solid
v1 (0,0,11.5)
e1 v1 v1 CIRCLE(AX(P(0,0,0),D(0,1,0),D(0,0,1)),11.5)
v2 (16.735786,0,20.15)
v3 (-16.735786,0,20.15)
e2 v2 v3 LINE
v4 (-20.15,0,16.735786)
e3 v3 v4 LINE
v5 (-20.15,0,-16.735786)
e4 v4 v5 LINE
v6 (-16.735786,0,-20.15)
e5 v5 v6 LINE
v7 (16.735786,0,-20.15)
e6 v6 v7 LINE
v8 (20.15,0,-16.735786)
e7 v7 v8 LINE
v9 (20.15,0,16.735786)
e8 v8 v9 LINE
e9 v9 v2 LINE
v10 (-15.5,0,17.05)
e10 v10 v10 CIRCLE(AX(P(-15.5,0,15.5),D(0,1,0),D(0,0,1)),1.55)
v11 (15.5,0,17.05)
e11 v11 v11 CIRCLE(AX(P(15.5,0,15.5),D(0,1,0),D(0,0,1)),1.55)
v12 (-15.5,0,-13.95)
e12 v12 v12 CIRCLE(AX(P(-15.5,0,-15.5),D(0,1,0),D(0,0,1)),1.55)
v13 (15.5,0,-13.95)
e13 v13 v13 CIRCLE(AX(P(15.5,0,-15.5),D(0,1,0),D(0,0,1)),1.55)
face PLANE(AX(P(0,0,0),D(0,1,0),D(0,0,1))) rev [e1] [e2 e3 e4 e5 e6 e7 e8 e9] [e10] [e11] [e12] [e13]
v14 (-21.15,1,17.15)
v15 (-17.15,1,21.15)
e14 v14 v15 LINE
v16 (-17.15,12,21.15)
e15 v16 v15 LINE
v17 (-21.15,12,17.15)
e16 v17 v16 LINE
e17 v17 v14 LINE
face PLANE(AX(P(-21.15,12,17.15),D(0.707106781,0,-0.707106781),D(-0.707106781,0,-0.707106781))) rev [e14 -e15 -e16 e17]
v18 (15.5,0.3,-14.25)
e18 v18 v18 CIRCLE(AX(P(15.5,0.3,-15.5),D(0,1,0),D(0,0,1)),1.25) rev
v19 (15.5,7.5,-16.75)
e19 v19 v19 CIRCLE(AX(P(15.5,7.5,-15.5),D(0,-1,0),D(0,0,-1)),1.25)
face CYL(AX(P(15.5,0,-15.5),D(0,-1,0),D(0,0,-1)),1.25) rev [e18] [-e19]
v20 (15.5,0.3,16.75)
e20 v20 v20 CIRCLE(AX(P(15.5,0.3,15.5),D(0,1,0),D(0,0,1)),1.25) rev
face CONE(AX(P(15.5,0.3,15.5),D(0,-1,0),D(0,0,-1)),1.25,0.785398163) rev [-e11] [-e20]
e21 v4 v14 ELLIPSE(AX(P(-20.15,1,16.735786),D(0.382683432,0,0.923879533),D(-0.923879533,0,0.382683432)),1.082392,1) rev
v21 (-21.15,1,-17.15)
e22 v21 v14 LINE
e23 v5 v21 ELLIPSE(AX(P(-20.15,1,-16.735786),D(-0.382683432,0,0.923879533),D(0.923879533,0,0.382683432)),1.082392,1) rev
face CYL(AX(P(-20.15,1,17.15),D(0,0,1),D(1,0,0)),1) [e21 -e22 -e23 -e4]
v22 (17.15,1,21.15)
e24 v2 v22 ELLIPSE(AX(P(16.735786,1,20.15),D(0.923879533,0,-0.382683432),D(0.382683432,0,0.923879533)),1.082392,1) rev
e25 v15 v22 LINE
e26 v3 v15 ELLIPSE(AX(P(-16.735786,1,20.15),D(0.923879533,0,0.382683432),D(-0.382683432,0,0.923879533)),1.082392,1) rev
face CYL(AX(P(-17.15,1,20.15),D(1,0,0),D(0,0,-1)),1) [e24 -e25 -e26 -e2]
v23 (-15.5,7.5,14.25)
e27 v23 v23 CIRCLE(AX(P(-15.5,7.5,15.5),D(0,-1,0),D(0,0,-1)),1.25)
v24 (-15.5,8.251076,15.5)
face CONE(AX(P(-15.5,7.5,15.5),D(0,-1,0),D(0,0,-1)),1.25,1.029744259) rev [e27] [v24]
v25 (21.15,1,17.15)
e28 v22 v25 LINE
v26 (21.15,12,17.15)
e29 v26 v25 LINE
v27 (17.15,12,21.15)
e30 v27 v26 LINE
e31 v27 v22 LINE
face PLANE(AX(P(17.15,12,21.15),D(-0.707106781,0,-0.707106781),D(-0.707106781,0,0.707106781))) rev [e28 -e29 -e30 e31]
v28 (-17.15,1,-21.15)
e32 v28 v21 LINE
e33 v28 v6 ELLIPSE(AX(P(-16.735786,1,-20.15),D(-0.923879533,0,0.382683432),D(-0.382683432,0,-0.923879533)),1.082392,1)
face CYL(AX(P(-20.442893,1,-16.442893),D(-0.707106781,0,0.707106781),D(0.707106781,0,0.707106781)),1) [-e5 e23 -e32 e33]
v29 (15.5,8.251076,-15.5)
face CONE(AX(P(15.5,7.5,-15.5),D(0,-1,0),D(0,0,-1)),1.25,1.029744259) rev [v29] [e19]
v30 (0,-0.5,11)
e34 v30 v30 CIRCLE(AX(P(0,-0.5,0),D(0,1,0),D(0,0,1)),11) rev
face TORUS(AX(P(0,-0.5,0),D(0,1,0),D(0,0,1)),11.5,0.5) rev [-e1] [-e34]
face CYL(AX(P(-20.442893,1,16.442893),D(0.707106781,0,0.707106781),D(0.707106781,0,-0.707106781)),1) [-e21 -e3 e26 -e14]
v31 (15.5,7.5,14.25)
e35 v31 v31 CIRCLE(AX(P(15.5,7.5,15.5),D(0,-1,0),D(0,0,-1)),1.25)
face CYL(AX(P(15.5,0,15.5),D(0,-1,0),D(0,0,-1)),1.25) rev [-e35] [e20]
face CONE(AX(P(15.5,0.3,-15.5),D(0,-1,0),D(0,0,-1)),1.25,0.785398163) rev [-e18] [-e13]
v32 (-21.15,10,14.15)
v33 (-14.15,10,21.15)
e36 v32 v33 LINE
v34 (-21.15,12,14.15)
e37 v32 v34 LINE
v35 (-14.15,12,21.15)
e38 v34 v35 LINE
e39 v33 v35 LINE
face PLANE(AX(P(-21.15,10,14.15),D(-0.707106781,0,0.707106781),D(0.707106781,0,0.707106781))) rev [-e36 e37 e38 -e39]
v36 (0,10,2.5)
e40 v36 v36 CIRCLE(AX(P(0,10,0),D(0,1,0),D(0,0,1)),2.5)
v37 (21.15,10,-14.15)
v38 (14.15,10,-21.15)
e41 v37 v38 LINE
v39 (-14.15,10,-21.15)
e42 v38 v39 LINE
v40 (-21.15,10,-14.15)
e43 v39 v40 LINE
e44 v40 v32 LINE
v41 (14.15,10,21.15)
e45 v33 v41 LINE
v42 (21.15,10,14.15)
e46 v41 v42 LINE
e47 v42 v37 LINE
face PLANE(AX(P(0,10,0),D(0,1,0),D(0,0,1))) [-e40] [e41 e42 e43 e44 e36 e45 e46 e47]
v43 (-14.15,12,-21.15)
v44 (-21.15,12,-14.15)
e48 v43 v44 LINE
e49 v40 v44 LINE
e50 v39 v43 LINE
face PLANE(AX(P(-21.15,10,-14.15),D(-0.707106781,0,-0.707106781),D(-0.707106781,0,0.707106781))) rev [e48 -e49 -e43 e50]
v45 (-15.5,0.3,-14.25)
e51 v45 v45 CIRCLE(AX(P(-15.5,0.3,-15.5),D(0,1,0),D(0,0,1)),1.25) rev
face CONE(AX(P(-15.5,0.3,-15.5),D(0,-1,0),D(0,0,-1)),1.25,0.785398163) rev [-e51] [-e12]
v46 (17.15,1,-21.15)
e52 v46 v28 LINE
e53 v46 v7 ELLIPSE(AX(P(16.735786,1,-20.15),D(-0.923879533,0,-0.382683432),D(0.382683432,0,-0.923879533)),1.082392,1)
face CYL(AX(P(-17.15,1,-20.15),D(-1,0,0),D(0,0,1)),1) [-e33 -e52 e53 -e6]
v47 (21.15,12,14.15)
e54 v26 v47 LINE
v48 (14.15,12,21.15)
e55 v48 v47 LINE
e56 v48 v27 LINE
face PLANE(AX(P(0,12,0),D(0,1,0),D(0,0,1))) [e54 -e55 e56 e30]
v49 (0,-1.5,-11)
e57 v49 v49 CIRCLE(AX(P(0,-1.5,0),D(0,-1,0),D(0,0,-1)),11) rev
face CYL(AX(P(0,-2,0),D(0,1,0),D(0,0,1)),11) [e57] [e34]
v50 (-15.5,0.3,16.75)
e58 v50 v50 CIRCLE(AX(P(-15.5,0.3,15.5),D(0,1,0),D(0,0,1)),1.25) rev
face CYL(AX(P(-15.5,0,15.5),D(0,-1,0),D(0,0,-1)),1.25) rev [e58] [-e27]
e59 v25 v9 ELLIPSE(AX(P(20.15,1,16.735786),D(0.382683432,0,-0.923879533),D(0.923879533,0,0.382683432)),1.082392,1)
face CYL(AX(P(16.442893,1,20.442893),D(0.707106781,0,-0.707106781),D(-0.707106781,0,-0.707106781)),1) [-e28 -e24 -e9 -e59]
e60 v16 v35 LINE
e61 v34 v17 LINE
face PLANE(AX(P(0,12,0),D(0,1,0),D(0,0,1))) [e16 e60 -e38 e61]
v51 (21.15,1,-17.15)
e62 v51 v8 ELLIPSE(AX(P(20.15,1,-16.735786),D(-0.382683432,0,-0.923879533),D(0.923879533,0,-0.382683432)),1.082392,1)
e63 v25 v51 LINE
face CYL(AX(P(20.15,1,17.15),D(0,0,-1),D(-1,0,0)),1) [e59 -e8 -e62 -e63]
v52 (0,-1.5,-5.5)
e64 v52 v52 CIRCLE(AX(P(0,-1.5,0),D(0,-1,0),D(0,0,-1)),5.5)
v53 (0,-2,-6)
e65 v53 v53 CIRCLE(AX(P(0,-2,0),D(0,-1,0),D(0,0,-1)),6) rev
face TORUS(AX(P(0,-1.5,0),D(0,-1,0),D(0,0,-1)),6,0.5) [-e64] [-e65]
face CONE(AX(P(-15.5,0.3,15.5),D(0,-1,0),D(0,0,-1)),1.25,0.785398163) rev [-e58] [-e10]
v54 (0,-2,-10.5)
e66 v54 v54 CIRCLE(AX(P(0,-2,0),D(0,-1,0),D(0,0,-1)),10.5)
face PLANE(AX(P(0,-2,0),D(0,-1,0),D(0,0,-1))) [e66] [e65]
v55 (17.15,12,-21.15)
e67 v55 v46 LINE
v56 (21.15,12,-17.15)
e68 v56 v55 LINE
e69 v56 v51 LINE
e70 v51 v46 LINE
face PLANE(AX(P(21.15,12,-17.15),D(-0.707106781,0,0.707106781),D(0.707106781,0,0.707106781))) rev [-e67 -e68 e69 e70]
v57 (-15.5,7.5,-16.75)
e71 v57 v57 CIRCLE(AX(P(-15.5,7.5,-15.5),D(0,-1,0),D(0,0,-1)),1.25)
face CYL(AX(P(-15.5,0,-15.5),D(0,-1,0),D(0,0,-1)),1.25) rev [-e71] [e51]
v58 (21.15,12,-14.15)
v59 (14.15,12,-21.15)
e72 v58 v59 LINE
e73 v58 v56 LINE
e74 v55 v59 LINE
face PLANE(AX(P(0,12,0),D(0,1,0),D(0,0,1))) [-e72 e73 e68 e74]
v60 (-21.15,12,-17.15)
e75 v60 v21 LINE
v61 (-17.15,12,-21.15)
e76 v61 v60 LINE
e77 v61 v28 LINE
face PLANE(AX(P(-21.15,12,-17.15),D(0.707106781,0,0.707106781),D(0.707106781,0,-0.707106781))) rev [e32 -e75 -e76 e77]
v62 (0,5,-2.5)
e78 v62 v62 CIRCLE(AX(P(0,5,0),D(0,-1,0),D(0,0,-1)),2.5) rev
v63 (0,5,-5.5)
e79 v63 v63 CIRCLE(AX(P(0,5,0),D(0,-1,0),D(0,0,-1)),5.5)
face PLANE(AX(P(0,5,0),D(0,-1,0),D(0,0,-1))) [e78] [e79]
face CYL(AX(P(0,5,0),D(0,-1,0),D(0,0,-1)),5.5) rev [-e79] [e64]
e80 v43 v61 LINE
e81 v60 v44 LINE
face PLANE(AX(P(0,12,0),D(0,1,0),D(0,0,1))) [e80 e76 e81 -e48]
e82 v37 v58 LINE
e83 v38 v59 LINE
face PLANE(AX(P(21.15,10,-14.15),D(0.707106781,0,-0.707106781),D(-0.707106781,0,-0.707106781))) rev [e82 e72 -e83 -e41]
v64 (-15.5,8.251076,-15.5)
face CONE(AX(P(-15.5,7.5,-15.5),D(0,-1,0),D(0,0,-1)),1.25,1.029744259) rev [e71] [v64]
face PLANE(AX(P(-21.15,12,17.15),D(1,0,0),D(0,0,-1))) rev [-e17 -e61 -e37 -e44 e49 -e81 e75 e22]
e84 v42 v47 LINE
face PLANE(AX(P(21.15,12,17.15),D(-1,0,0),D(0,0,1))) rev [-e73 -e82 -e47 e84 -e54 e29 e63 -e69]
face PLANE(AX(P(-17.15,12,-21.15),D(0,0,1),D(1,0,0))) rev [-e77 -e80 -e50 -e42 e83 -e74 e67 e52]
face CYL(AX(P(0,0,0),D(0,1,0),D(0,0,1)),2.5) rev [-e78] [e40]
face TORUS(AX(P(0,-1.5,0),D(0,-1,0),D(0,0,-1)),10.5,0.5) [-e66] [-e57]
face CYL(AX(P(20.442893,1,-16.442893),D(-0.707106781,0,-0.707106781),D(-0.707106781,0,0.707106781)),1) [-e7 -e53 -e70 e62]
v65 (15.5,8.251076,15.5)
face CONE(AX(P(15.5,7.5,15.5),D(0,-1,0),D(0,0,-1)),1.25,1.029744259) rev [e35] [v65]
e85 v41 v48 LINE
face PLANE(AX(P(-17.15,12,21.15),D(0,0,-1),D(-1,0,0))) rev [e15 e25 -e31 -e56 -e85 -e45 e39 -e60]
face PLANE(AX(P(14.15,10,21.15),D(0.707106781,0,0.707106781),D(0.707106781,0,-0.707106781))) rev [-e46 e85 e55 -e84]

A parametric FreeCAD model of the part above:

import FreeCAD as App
import Part
import Sketcher
from FreeCAD import Vector
Q = App.Units.Quantity


def edges_at(feature, points):
    """Names of the edges that pass closest to the given points."""
    edges = feature.Shape.Edges
    near = lambda p: min(range(len(edges)), key=lambda i: edges[i].distToShape(Part.Vertex(*p))[0])
    return sorted({f"Edge{near(p) + 1}" for p in points})


def add_polygon(sketch, points):
    """Adds a closed chain of lines whose ends are joined by coincident constraints."""
    first, n = sketch.GeometryCount, len(points)
    for a, b in zip(points, points[1:] + points[:1]):
        sketch.addGeometry(Part.LineSegment(App.Vector(*a, 0), App.Vector(*b, 0)), False)
    for i in range(n):
        sketch.addConstraint(Sketcher.Constraint("Coincident", first + i, 2, first + (i + 1) % n, 1))

doc = App.newDocument("Part")
params = doc.addObject("Spreadsheet::Sheet", "Params")
for row, (alias, value) in enumerate([
    ("sketch1_width", "34.3 mm"),
    ("pad1_length", "12 mm"),
    ("sketch2_width", "28.3 mm"),
    ("pocket1_length", "2 mm"),
    ("sketch3_diameter", "5 mm"),
    ("sketch4_diameter", "11 mm"),
    ("pocket3_length", "5 mm"),
    ("sketch5_diameter", "22 mm"),
    ("sketch5_diameter2", "11 mm"),
    ("pad2_length", "2 mm"),
    ("fillet_radius", "1 mm"),
    ("fillet2_radius", "0.5 mm"),
    ("sketch6_diameter", "2.5 mm"),
    ("hole_diameter", "2.5 mm"),
    ("hole_depth", "7.5 mm"),
    ("chamfer_size", "0.3 mm"),
], start=1):
    params.set(f"A{row}", alias)
    params.set(f"B{row}", "=" + value)
    params.setAlias(f"B{row}", alias)

body = doc.addObject("PartDesign::Body", "Body")

# Sketch on XZ plane
sketch1 = doc.addObject("Sketcher::SketchObject", "Sketch")
body.addObject(sketch1)
sketch1.AttachmentSupport = (doc.XZ_Plane, [""])
sketch1.MapMode = "FlatFace"
add_polygon(sketch1, [(-17, -21), (-21, -17), (-21, 17), (-17, 21), (17, 21), (21, 17), (21, -17), (17, -21)])  # lines 0-7
sketch1.addConstraint(Sketcher.Constraint("Vertical", 1))
sketch1.addConstraint(Sketcher.Constraint("Horizontal", 3))
sketch1.addConstraint(Sketcher.Constraint("Vertical", 5))
sketch1.addConstraint(Sketcher.Constraint("Horizontal", 7))
sketch1.addConstraint(Sketcher.Constraint("Symmetric", 0, 2, 4, 2, -1, 1))
sketch1.addConstraint(Sketcher.Constraint("Symmetric", 2, 2, 6, 2, -1, 1))
sketch1.addConstraint(Sketcher.Constraint("Perpendicular", 0, 2))
sketch1.addConstraint(Sketcher.Constraint("Perpendicular", 2, 4))
sketch1.addConstraint(Sketcher.Constraint("Perpendicular", 4, 6))
sketch1.addConstraint(Sketcher.Constraint("Horizontal", 1, 2, 4, 2))
sketch1.addConstraint(Sketcher.Constraint("Vertical", 3, 2, 6, 2))
sketch1.addConstraint(Sketcher.Constraint("Equal", 7, 1))
sketch1.addConstraint(Sketcher.Constraint("DistanceX", 3, 1, 3, 2, Q("34.3 mm")))
sketch1.addConstraint(Sketcher.Constraint("DistanceX", 1, 2, 2, 2, Q("4 mm")))
sketch1.setExpression("Constraints[20]", "Params.sketch1_width")
pad1 = doc.addObject("PartDesign::Pad", "Pad")
body.addObject(pad1)
pad1.Profile = sketch1
pad1.setExpression("Length", "Params.pad1_length")
pad1.Reversed = True

# Sketch on XZ plane
sketch2 = doc.addObject("Sketcher::SketchObject", "Sketch001")
body.addObject(sketch2)
sketch2.AttachmentSupport = (doc.XZ_Plane, [""])
sketch2.MapMode = "FlatFace"
sketch2.AttachmentOffset = App.Placement(Vector(0, 0, -12), App.Rotation())
add_polygon(sketch2, [(-14, 21), (14, 21), (21, 14), (21, -14), (14, -21), (-14, -21), (-21, -14), (-21, 14)])  # lines 0-7
sketch2.addConstraint(Sketcher.Constraint("Horizontal", 0))
sketch2.addConstraint(Sketcher.Constraint("Vertical", 2))
sketch2.addConstraint(Sketcher.Constraint("Horizontal", 4))
sketch2.addConstraint(Sketcher.Constraint("Vertical", 6))
sketch2.addConstraint(Sketcher.Constraint("Symmetric", 0, 2, 4, 2, -1, 1))
sketch2.addConstraint(Sketcher.Constraint("Symmetric", 1, 2, 5, 2, -1, 1))
sketch2.addConstraint(Sketcher.Constraint("Perpendicular", 1, 3))
sketch2.addConstraint(Sketcher.Constraint("Perpendicular", 5, 7))
sketch2.addConstraint(Sketcher.Constraint("Horizontal", 2, 2, 5, 2))
sketch2.addConstraint(Sketcher.Constraint("Horizontal", 1, 2, 6, 2))
sketch2.addConstraint(Sketcher.Constraint("Vertical", 0, 2, 3, 2))
sketch2.addConstraint(Sketcher.Constraint("Equal", 4, 2))
sketch2.addConstraint(Sketcher.Constraint("DistanceX", 0, 1, 0, 2, Q("28.3 mm")))
sketch2.addConstraint(Sketcher.Constraint("DistanceX", 0, 2, 1, 2, Q("7 mm")))
sketch2.setExpression("Constraints[20]", "Params.sketch2_width")
pocket1 = doc.addObject("PartDesign::Pocket", "Pocket")
body.addObject(pocket1)
pocket1.Profile = sketch2
pocket1.setExpression("Length", "Params.pocket1_length")
pocket1.Reversed = True

# Sketch on XZ plane
sketch3 = doc.addObject("Sketcher::SketchObject", "Sketch002")
body.addObject(sketch3)
sketch3.AttachmentSupport = (doc.XZ_Plane, [""])
sketch3.MapMode = "FlatFace"
sketch3.AttachmentOffset = App.Placement(Vector(0, 0, -10), App.Rotation())
sketch3.addGeometry(Part.Circle(Vector(0, 0, 0), Vector(0, 0, 1), 2.5), False)
sketch3.addConstraint(Sketcher.Constraint("Coincident", 0, 3, -1, 1))
sketch3.addConstraint(Sketcher.Constraint("Diameter", 0, Q("5 mm")))
sketch3.setExpression("Constraints[1]", "Params.sketch3_diameter")
pocket2 = doc.addObject("PartDesign::Pocket", "Pocket001")
body.addObject(pocket2)
pocket2.Profile = sketch3
pocket2.Type = "ThroughAll"
pocket2.Reversed = True

# Sketch on XZ plane
sketch4 = doc.addObject("Sketcher::SketchObject", "Sketch003")
body.addObject(sketch4)
sketch4.AttachmentSupport = (doc.XZ_Plane, [""])
sketch4.MapMode = "FlatFace"
sketch4.addGeometry(Part.Circle(Vector(0, 0, 0), Vector(0, 0, 1), 6), False)
sketch4.addConstraint(Sketcher.Constraint("Coincident", 0, 3, -1, 1))
sketch4.addConstraint(Sketcher.Constraint("Diameter", 0, Q("11 mm")))
sketch4.setExpression("Constraints[1]", "Params.sketch4_diameter")
pocket3 = doc.addObject("PartDesign::Pocket", "Pocket002")
body.addObject(pocket3)
pocket3.Profile = sketch4
pocket3.setExpression("Length", "Params.pocket3_length")

# Sketch on XZ plane
sketch5 = doc.addObject("Sketcher::SketchObject", "Sketch004")
body.addObject(sketch5)
sketch5.AttachmentSupport = (doc.XZ_Plane, [""])
sketch5.MapMode = "FlatFace"
sketch5.addGeometry(Part.Circle(Vector(0, 0, 0), Vector(0, 0, 1), 11), False)
sketch5.addGeometry(Part.Circle(Vector(0, 0, 0), Vector(0, 0, 1), 6), False)
sketch5.addConstraint(Sketcher.Constraint("Coincident", 0, 3, -1, 1))
sketch5.addConstraint(Sketcher.Constraint("Coincident", 1, 3, -1, 1))
sketch5.addConstraint(Sketcher.Constraint("Diameter", 0, Q("22 mm")))
sketch5.addConstraint(Sketcher.Constraint("Diameter", 1, Q("11 mm")))
sketch5.setExpression("Constraints[2]", "Params.sketch5_diameter")
sketch5.setExpression("Constraints[3]", "Params.sketch5_diameter2")
pad2 = doc.addObject("PartDesign::Pad", "Pad001")
body.addObject(pad2)
pad2.Profile = sketch5
pad2.setExpression("Length", "Params.pad2_length")
doc.recompute()

fillet = doc.addObject("PartDesign::Fillet", "Fillet")
body.addObject(fillet)
fillet.Base = (pad2, edges_at(pad2, [
    (-19.15, 0, -19.15),
    (0, 0, -21.15),
    (19.15, 0, -19.15),
    (21.15, 0, 0),
    (19.15, 0, 19.15),
    (0, 0, 21.15),
    (-19.15, 0, 19.15),
    (-21.15, 0, 0),
]))
fillet.setExpression("Radius", "Params.fillet_radius")
doc.recompute()

fillet2 = doc.addObject("PartDesign::Fillet", "Fillet001")
body.addObject(fillet2)
fillet2.Base = (fillet, edges_at(fillet, [(-11, 0, 0), (-11, -2, 0), (-5.5, -2, 0)]))
fillet2.setExpression("Radius", "Params.fillet2_radius")

# Sketch on XZ plane
sketch6 = doc.addObject("Sketcher::SketchObject", "Sketch005")
body.addObject(sketch6)
sketch6.AttachmentSupport = (doc.XZ_Plane, [""])
sketch6.MapMode = "FlatFace"
sketch6.addGeometry(Part.Circle(Vector(15.5, 15.5, 0), Vector(0, 0, 1), 1.2), False)
sketch6.addGeometry(Part.Circle(Vector(-15.5, 15.5, 0), Vector(0, 0, 1), 1.2), False)
sketch6.addGeometry(Part.Circle(Vector(-15.5, -15.5, 0), Vector(0, 0, 1), 1.2), False)
sketch6.addGeometry(Part.Circle(Vector(15.5, -15.5, 0), Vector(0, 0, 1), 1.2), False)
sketch6.addConstraint(Sketcher.Constraint("Equal", 0, 1))
sketch6.addConstraint(Sketcher.Constraint("Equal", 1, 2))
sketch6.addConstraint(Sketcher.Constraint("Equal", 2, 3))
sketch6.addConstraint(Sketcher.Constraint("Symmetric", 0, 3, 2, 3, -1, 1))
sketch6.addConstraint(Sketcher.Constraint("Symmetric", 1, 3, 3, 3, -1, 1))
sketch6.addConstraint(Sketcher.Constraint("Symmetric", 0, 3, 1, 3, -2))
sketch6.addConstraint(Sketcher.Constraint("Diameter", 0, Q("2.5 mm")))
sketch6.addConstraint(Sketcher.Constraint("DistanceX", 1, 3, 0, 3, Q("31 mm")))
sketch6.addConstraint(Sketcher.Constraint("DistanceY", 2, 3, 1, 3, Q("31 mm")))
sketch6.setExpression("Constraints[6]", "Params.sketch6_diameter")
doc.recompute()
hole = doc.addObject("PartDesign::Hole", "Hole")
body.addObject(hole)
hole.Profile = sketch6
hole.ThreadType = "None"
hole.setExpression("Diameter", "Params.hole_diameter")
hole.DepthType = "Dimension"
hole.setExpression("Depth", "Params.hole_depth")
hole.DrillPoint = "Angled"
hole.DrillPointAngle = 118
doc.recompute()

chamfer = doc.addObject("PartDesign::Chamfer", "Chamfer")
body.addObject(chamfer)
chamfer.Base = (hole, edges_at(hole, [
    (14.25, 0, -15.5),
    (-16.75, 0, -15.5),
    (-16.75, 0, 15.5),
    (14.25, 0, 15.5),
]))
chamfer.setExpression("Size", "Params.chamfer_size")

doc.recompute()
